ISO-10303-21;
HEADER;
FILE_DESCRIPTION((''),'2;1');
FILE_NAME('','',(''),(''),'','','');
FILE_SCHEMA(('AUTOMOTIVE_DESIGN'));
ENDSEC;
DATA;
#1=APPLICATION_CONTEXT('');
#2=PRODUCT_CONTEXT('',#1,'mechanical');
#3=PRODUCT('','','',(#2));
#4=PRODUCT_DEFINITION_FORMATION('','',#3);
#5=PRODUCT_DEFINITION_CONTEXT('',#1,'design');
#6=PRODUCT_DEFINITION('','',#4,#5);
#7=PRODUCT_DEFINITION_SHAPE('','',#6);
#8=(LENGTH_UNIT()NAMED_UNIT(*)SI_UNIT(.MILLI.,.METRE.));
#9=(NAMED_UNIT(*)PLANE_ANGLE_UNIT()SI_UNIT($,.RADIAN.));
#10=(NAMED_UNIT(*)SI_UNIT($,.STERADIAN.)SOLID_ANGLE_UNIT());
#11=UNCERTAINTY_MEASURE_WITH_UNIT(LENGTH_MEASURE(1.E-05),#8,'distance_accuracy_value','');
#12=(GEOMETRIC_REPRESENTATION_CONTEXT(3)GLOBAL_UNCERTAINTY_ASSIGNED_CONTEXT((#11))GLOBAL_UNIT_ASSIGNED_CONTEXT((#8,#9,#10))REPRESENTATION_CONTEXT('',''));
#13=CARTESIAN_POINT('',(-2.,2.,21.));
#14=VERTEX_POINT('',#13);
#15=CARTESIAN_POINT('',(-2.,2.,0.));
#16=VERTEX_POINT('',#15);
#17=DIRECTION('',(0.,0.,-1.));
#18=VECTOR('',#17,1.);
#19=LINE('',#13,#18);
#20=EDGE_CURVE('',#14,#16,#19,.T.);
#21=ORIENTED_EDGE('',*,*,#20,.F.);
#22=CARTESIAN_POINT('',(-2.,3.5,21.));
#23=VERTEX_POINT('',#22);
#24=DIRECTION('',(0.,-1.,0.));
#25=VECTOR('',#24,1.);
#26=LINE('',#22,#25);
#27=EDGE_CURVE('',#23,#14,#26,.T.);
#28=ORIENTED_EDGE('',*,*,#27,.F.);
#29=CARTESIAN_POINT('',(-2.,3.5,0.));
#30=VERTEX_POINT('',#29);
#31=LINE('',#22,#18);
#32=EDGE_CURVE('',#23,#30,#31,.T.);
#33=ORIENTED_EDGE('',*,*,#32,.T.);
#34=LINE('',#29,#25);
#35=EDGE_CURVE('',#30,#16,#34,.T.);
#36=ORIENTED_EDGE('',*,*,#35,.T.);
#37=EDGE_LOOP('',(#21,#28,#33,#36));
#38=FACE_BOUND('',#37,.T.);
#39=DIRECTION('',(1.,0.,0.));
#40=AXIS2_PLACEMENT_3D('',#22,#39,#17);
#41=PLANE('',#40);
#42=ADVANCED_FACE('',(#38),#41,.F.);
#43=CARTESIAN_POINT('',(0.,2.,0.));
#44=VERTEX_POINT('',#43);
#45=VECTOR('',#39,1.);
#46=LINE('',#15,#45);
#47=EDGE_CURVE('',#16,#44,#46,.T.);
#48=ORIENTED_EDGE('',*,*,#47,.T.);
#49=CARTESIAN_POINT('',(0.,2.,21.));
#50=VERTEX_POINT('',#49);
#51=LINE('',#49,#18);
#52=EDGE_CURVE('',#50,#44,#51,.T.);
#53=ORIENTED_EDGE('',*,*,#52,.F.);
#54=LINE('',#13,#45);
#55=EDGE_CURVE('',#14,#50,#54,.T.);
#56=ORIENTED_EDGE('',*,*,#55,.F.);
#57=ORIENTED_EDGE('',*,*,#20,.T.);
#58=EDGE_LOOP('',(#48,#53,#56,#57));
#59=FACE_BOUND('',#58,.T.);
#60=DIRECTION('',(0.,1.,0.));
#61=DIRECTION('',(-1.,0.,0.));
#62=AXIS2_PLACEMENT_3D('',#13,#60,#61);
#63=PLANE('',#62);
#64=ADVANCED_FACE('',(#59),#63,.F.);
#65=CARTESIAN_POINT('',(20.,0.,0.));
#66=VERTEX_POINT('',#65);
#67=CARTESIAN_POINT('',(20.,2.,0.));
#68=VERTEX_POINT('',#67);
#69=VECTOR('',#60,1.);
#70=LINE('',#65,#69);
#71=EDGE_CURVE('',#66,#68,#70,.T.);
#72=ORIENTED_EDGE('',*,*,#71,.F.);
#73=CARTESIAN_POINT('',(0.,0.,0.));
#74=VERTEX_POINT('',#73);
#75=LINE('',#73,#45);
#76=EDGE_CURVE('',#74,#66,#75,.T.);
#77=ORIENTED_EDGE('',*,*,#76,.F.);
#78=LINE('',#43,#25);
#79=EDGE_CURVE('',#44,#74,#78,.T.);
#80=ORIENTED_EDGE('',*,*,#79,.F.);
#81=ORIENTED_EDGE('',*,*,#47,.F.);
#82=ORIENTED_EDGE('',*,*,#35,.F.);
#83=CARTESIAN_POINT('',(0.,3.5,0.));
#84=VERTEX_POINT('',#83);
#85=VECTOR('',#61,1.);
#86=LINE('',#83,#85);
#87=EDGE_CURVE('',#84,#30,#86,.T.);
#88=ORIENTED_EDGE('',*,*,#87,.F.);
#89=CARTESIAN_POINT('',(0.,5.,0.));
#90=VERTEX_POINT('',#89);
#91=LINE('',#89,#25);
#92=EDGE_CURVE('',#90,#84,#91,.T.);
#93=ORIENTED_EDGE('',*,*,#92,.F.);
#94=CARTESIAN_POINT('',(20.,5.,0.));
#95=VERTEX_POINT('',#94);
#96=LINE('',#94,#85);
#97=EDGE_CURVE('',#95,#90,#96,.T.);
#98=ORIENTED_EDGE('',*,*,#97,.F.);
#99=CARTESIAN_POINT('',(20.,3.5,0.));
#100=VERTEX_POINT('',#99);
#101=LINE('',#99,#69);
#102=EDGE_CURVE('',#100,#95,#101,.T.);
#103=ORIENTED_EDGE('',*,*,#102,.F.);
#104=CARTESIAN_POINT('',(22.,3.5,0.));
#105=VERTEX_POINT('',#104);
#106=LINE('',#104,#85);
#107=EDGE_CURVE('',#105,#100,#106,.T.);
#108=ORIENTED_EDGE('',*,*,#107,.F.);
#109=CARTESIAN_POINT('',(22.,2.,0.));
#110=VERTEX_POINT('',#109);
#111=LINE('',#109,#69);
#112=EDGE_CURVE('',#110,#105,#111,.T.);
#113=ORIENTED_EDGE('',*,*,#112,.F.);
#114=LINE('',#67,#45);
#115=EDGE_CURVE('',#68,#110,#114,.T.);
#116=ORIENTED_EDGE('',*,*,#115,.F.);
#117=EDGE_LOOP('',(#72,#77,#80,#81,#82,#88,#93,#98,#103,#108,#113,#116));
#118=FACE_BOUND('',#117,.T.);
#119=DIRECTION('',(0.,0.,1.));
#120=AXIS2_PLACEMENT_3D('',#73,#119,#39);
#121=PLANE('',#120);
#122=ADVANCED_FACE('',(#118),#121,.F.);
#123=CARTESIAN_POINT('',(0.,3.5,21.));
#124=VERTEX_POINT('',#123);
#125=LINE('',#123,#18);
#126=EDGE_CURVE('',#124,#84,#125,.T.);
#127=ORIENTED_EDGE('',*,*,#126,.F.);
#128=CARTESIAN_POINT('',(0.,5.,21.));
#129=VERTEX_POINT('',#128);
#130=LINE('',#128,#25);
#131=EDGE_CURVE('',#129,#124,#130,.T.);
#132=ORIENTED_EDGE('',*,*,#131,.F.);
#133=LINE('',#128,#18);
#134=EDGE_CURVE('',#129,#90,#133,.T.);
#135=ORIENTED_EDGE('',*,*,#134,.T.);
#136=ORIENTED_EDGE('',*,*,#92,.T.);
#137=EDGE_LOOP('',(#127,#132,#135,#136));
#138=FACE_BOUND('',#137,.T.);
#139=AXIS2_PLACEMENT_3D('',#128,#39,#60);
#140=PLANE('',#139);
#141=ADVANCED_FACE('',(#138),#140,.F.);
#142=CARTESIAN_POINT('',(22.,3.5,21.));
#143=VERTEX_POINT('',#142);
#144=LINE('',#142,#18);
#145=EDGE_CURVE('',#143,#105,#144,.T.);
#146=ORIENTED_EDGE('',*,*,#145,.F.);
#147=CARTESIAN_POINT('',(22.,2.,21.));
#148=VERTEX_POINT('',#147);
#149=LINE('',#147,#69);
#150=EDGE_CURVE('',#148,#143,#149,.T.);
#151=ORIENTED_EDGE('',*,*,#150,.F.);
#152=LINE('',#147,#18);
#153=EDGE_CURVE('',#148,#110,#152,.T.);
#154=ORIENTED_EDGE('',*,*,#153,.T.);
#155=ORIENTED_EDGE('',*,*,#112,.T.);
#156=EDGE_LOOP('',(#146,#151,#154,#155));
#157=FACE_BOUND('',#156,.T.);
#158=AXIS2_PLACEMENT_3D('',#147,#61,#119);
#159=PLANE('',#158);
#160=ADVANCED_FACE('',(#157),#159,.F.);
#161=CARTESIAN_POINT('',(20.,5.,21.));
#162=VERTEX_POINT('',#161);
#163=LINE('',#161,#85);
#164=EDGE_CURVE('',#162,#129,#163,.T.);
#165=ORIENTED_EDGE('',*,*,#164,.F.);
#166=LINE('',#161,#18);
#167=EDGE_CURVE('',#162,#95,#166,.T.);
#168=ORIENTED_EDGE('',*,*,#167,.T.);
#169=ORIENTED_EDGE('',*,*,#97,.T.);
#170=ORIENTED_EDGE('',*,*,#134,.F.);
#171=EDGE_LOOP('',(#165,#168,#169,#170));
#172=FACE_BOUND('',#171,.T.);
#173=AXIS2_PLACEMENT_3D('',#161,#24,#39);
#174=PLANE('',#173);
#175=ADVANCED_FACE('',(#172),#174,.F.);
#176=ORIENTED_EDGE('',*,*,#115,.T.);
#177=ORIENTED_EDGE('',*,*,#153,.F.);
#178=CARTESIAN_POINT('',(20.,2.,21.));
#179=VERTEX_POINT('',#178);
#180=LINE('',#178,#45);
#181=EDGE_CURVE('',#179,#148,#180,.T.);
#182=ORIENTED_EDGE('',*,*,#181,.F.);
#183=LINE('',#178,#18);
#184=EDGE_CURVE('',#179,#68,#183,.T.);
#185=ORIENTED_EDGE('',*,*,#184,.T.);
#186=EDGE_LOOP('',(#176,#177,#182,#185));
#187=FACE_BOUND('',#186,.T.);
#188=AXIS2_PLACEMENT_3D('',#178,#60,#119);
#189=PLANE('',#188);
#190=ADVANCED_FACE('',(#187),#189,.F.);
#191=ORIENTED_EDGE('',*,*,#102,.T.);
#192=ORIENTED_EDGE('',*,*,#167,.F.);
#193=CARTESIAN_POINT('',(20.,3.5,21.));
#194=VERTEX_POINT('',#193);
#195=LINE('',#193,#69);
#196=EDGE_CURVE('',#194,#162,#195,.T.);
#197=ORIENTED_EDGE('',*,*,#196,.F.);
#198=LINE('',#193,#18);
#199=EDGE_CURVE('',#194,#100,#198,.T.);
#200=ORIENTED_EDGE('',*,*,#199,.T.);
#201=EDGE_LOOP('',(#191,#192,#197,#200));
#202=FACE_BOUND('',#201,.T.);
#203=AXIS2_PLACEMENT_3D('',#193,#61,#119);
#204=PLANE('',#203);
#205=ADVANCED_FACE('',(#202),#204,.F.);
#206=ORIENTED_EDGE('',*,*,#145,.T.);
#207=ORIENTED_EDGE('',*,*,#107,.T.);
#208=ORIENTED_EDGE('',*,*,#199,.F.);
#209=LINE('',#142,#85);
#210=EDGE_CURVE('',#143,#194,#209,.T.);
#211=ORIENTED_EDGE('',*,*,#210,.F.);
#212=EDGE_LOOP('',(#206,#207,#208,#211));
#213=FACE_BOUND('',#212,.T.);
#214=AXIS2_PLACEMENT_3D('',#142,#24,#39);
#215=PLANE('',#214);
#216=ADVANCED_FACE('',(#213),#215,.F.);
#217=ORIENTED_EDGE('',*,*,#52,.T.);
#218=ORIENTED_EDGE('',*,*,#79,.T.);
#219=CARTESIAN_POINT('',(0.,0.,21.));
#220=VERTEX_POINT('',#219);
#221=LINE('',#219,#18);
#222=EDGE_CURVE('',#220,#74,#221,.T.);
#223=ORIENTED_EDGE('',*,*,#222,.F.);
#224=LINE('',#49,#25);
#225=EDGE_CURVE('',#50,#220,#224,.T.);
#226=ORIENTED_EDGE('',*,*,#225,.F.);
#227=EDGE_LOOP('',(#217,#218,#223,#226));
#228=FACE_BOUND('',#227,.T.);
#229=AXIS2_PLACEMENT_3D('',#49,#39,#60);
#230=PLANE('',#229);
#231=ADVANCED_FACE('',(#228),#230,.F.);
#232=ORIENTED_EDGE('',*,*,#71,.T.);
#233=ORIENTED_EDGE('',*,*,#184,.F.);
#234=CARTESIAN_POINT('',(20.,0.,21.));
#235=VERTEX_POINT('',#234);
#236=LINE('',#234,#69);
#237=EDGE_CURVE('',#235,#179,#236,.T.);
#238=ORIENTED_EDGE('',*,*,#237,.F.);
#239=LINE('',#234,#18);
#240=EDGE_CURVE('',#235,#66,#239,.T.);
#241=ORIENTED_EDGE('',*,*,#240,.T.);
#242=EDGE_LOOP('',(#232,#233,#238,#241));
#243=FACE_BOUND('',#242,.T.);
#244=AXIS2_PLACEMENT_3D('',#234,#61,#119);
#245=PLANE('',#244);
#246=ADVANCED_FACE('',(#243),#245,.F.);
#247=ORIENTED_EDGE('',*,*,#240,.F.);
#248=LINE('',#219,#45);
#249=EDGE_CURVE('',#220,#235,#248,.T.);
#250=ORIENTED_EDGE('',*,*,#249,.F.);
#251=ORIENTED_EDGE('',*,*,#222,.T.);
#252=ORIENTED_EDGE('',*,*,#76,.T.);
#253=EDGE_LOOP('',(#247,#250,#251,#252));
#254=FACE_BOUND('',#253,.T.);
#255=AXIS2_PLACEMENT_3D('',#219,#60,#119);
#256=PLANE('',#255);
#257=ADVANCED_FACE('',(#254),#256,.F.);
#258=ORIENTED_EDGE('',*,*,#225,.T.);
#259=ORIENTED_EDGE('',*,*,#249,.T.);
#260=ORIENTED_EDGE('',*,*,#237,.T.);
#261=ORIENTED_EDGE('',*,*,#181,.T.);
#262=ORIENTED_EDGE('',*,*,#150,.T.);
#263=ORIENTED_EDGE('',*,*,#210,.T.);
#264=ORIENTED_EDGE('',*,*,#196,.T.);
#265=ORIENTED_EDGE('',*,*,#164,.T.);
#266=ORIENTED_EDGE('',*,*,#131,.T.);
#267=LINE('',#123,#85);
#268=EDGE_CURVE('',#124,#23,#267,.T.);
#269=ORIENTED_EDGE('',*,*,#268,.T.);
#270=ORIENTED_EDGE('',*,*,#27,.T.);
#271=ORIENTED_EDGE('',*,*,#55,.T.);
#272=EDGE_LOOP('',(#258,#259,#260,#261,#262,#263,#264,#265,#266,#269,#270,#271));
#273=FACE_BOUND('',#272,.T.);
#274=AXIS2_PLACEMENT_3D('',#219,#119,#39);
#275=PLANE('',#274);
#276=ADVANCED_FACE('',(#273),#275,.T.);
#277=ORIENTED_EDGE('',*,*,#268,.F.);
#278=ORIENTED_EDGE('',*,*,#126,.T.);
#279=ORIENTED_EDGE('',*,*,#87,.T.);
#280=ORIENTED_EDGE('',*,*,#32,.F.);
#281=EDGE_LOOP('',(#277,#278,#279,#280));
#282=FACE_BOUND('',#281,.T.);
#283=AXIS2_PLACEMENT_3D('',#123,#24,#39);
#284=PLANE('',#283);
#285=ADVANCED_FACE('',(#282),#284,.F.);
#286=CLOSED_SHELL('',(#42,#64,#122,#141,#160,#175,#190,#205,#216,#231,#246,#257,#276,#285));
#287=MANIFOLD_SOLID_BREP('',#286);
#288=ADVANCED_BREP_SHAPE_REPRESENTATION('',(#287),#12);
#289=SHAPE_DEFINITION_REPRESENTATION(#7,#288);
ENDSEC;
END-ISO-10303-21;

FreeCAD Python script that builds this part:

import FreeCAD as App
import Part
import Sketcher
Q = App.Units.Quantity

doc = App.newDocument("Part")
body = doc.addObject("PartDesign::Body", "Body")

# Sketch on XY plane
sketch1 = body.newObject("Sketcher::SketchObject", "Sketch")
sketch1.AttachmentSupport = (doc.getObject("XY_Plane"), [""])
sketch1.MapMode = "FlatFace"
sketch1.addGeometry([
    Part.LineSegment(App.Vector(0, 0, 0), App.Vector(20, 0, 0)),  # 0
    Part.LineSegment(App.Vector(20, 0, 0), App.Vector(20, 2, 0)),  # 1
    Part.LineSegment(App.Vector(20, 2, 0), App.Vector(22, 2, 0)),  # 2
    Part.LineSegment(App.Vector(22, 2, 0), App.Vector(22, 3.5, 0)),  # 3
    Part.LineSegment(App.Vector(22, 3.5, 0), App.Vector(20, 3.5, 0)),  # 4
    Part.LineSegment(App.Vector(20, 3.5, 0), App.Vector(20, 5, 0)),  # 5
    Part.LineSegment(App.Vector(20, 5, 0), App.Vector(0, 5, 0)),  # 6
    Part.LineSegment(App.Vector(0, 5, 0), App.Vector(0, 3.5, 0)),  # 7
    Part.LineSegment(App.Vector(0, 3.5, 0), App.Vector(-2, 3.5, 0)),  # 8
    Part.LineSegment(App.Vector(-2, 3.5, 0), App.Vector(-2, 2, 0)),  # 9
    Part.LineSegment(App.Vector(-2, 2, 0), App.Vector(0, 2, 0)),  # 10
    Part.LineSegment(App.Vector(0, 2, 0), App.Vector(0, 0, 0)),  # 11
], False)
sketch1.addConstraint([
    Sketcher.Constraint("Coincident", 0, 2, 1, 1),
    Sketcher.Constraint("Coincident", 1, 2, 2, 1),
    Sketcher.Constraint("Coincident", 2, 2, 3, 1),
    Sketcher.Constraint("Coincident", 3, 2, 4, 1),
    Sketcher.Constraint("Coincident", 4, 2, 5, 1),
    Sketcher.Constraint("Coincident", 5, 2, 6, 1),
    Sketcher.Constraint("Coincident", 6, 2, 7, 1),
    Sketcher.Constraint("Coincident", 7, 2, 8, 1),
    Sketcher.Constraint("Coincident", 8, 2, 9, 1),
    Sketcher.Constraint("Coincident", 9, 2, 10, 1),
    Sketcher.Constraint("Coincident", 10, 2, 11, 1),
    Sketcher.Constraint("Coincident", 11, 2, 0, 1),
    Sketcher.Constraint("Horizontal", 0),
    Sketcher.Constraint("Vertical", 1),
    Sketcher.Constraint("Horizontal", 2),
    Sketcher.Constraint("Vertical", 3),
    Sketcher.Constraint("Horizontal", 4),
    Sketcher.Constraint("Vertical", 5),
    Sketcher.Constraint("Horizontal", 6),
    Sketcher.Constraint("Vertical", 7),
    Sketcher.Constraint("Horizontal", 8),
    Sketcher.Constraint("Vertical", 9),
    Sketcher.Constraint("Horizontal", 10),
    Sketcher.Constraint("Vertical", 11),
    Sketcher.Constraint("Coincident", 11, 2, -1, 1),
    Sketcher.Constraint("PointOnObject", 6, 2, -2),
    Sketcher.Constraint("Horizontal", 4, 2, 7, 2),
    Sketcher.Constraint("Horizontal", 2, 2, 9, 2),
    Sketcher.Constraint("Vertical", 1, 2, 4, 2),
    Sketcher.Constraint("Equal", 4, 8),
    Sketcher.Constraint("Equal", 10, 1),
    Sketcher.Constraint("Equal", 3, 5),
    Sketcher.Constraint("DistanceX", 0, 1, 0, 2, Q("20 mm")),
    Sketcher.Constraint("DistanceX", 2, 1, 2, 2, Q("2 mm")),
    Sketcher.Constraint("DistanceY", 3, 1, 3, 2, Q("1.5 mm")),
])
pad1 = body.newObject("PartDesign::Pad", "Pad")
pad1.Profile = sketch1
pad1.Length = 21

doc.recompute()
